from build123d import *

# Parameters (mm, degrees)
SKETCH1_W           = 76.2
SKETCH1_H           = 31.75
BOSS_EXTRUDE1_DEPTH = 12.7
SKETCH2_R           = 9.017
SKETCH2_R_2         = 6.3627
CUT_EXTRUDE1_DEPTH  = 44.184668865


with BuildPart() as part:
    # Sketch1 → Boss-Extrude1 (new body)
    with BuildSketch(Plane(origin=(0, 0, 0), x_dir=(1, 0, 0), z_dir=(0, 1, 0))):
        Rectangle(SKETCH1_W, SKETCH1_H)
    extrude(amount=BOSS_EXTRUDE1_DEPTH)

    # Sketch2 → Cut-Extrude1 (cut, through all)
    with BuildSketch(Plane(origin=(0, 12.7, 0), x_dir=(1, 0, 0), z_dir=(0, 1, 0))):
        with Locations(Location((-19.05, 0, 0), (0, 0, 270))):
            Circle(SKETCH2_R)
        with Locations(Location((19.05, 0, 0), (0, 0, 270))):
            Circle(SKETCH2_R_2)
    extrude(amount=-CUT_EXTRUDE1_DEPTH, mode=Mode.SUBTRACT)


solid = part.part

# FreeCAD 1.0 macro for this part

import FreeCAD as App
import Part
import Sketcher

V = App.Vector
Q = App.Units.Quantity


def add_polygon(sketch, points):
    """Adds a closed chain of lines whose ends are joined by coincident constraints."""
    first, n = sketch.GeometryCount, len(points)
    for a, b in zip(points, points[1:] + points[:1]):
        sketch.addGeometry(Part.LineSegment(App.Vector(*a, 0), App.Vector(*b, 0)), False)
    for i in range(n):
        sketch.addConstraint(Sketcher.Constraint("Coincident", first + i, 2, first + (i + 1) % n, 1))

doc = App.newDocument("Part")
params = doc.addObject("Spreadsheet::Sheet", "Params")
for row, (alias, value) in enumerate([
    ("sketch1_width", "3 in"),
    ("sketch1_height", "1.25 in"),
    ("pad1_length", "0.5 in"),
    ("sketch2_diameter", "0.71 in"),
    ("sketch2_diameter2", "0.501 in"),
], start=1):
    params.set(f"A{row}", alias)
    params.set(f"B{row}", "=" + value)
    params.setAlias(f"B{row}", alias)

body = doc.addObject("PartDesign::Body", "Body")

sketch1 = body.newObject("Sketcher::SketchObject", "Sketch")
sketch1.AttachmentSupport = (doc.getObject("XZ_Plane"), [""])
sketch1.MapMode = "FlatFace"
add_polygon(sketch1, [(-38.1, -15.875), (-38.1, 15.875), (38.1, 15.875), (38.1, -15.875)])
sketch1.addConstraint([
    Sketcher.Constraint("Vertical", 0),
    Sketcher.Constraint("Horizontal", 1),
    Sketcher.Constraint("Vertical", 2),
    Sketcher.Constraint("Horizontal", 3),
    Sketcher.Constraint("Symmetric", 0, 2, 2, 2, -1, 1),
    Sketcher.Constraint("DistanceX", 1, 1, 1, 2, Q("3 in")),
    Sketcher.Constraint("DistanceY", 0, 1, 0, 2, Q("1.25 in")),
])
sketch1.setExpression("Constraints[9]", "Params.sketch1_width")
sketch1.setExpression("Constraints[10]", "Params.sketch1_height")
pad1 = body.newObject("PartDesign::Pad", "Pad")
pad1.Profile = sketch1
pad1.setExpression("Length", "Params.pad1_length")
pad1.Reversed = True

sketch2 = body.newObject("Sketcher::SketchObject", "Sketch001")
sketch2.AttachmentSupport = (doc.getObject("XZ_Plane"), [""])
sketch2.MapMode = "FlatFace"
sketch2.AttachmentOffset = App.Placement(V(0, 0, -0.5 * 25.4), App.Rotation())
sketch2.addGeometry([
    Part.Circle(V(-19.05, 0, 0), V(0, 0, 1), 9.017),
    Part.Circle(V(19.05, 0, 0), V(0, 0, 1), 6.3627),
], False)
sketch2.addConstraint([
    Sketcher.Constraint("Symmetric", 0, 3, 1, 3, -1, 1),
    Sketcher.Constraint("PointOnObject", 0, 3, -1),
    Sketcher.Constraint("Diameter", 0, Q("0.71 in")),
    Sketcher.Constraint("Diameter", 1, Q("0.501 in")),
    Sketcher.Constraint("DistanceX", 0, 3, 1, 3, Q("1.5 in")),
])
sketch2.setExpression("Constraints[2]", "Params.sketch2_diameter")
sketch2.setExpression("Constraints[3]", "Params.sketch2_diameter2")
pocket1 = body.newObject("PartDesign::Pocket", "Pocket")
pocket1.Profile = sketch2
pocket1.Type = "ThroughAll"
pocket1.Reversed = True

doc.recompute()
